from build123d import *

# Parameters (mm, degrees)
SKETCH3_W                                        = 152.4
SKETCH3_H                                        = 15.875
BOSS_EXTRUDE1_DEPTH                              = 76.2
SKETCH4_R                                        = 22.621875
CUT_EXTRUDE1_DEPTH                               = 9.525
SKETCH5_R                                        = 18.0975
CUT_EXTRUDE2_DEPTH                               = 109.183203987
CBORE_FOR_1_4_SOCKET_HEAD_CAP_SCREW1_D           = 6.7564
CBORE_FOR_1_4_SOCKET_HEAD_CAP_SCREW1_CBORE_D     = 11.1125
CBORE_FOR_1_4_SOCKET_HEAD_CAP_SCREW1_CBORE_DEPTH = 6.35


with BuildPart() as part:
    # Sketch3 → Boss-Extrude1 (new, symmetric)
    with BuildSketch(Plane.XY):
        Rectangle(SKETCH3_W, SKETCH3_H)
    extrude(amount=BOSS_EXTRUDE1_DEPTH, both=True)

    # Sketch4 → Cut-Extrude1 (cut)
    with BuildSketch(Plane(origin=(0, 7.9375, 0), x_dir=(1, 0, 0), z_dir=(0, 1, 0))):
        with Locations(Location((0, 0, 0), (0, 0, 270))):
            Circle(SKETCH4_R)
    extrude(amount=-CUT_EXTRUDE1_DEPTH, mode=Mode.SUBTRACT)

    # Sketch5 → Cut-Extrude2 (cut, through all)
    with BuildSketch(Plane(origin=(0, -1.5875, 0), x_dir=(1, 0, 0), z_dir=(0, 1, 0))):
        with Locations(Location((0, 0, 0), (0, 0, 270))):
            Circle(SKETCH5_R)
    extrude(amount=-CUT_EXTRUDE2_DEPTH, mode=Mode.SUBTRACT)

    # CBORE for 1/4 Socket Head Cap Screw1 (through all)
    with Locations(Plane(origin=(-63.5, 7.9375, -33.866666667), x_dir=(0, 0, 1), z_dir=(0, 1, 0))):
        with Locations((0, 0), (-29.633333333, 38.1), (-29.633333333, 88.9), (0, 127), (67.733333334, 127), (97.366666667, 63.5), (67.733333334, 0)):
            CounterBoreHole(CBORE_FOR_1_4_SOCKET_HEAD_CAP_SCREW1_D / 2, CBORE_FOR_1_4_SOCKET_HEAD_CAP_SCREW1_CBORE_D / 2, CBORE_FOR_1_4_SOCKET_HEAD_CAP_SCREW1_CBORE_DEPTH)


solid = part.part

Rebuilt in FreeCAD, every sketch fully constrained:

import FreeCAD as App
import Part
import Sketcher

V = App.Vector
Q = App.Units.Quantity


def add_polygon(sketch, points):
    """Adds a closed chain of lines whose ends are joined by coincident constraints."""
    first, n = sketch.GeometryCount, len(points)
    for a, b in zip(points, points[1:] + points[:1]):
        sketch.addGeometry(Part.LineSegment(App.Vector(*a, 0), App.Vector(*b, 0)), False)
    for i in range(n):
        sketch.addConstraint(Sketcher.Constraint("Coincident", first + i, 2, first + (i + 1) % n, 1))

doc = App.newDocument("Part")
body = doc.addObject("PartDesign::Body", "Body")

sketch1 = body.newObject("Sketcher::SketchObject", "Sketch")
sketch1.AttachmentSupport = (doc.getObject("XY_Plane"), [""])
sketch1.MapMode = "FlatFace"
add_polygon(sketch1, [(-76, 8), (-76, -8), (76, -8), (76, 8)])
sketch1.addConstraint([
    Sketcher.Constraint("Vertical", 0),
    Sketcher.Constraint("Horizontal", 1),
    Sketcher.Constraint("Vertical", 2),
    Sketcher.Constraint("Horizontal", 3),
    Sketcher.Constraint("Symmetric", 0, 2, 2, 2, -1, 1),
    Sketcher.Constraint("DistanceX", 1, 1, 1, 2, Q("6 in")),
    Sketcher.Constraint("DistanceY", 0, 2, 0, 1, Q("0.625 in")),
])
pad1 = body.newObject("PartDesign::Pad", "Pad")
pad1.Profile = sketch1
pad1.Length = Q("6 in")
pad1.Midplane = True

sketch2 = body.newObject("Sketcher::SketchObject", "Sketch001")
sketch2.AttachmentSupport = (doc.getObject("XZ_Plane"), [""])
sketch2.MapMode = "FlatFace"
sketch2.AttachmentOffset = App.Placement(V(0, 0, -0.3125 * 25.4), App.Rotation())
sketch2.addGeometry(Part.Circle(V(0, 0, 0), V(0, 0, 1), 23), False)
sketch2.addConstraint([
    Sketcher.Constraint("Coincident", 0, 3, -1, 1),
    Sketcher.Constraint("Diameter", 0, Q("1.78125 in")),
])
pocket1 = body.newObject("PartDesign::Pocket", "Pocket")
pocket1.Profile = sketch2
pocket1.Length = Q("0.375 in")
pocket1.Reversed = True

sketch3 = body.newObject("Sketcher::SketchObject", "Sketch002")
sketch3.AttachmentSupport = (doc.getObject("XZ_Plane"), [""])
sketch3.MapMode = "FlatFace"
sketch3.AttachmentOffset = App.Placement(V(0, 0, 0.0625 * 25.4), App.Rotation())
sketch3.addGeometry(Part.Circle(V(0, 0, 0), V(0, 0, 1), 18), False)
sketch3.addConstraint([
    Sketcher.Constraint("Coincident", 0, 3, -1, 1),
    Sketcher.Constraint("Diameter", 0, Q("1.425 in")),
])
pocket2 = body.newObject("PartDesign::Pocket", "Pocket001")
pocket2.Profile = sketch3
pocket2.Type = "ThroughAll"
pocket2.Reversed = True

sketch4 = body.newObject("Sketcher::SketchObject", "Sketch003")
sketch4.AttachmentSupport = (doc.getObject("XZ_Plane"), [""])
sketch4.MapMode = "FlatFace"
sketch4.AttachmentOffset = App.Placement(V(0, 0, -0.3125 * 25.4), App.Rotation())
sketch4.addGeometry([
    Part.Circle(V(-63.5, -33.9, 0), V(0, 0, 1), 3.4),
    Part.Circle(V(-25.4, -63.5, 0), V(0, 0, 1), 3.4),
    Part.Circle(V(25.4, -63.5, 0), V(0, 0, 1), 3.4),
    Part.Circle(V(63.5, -33.9, 0), V(0, 0, 1), 3.4),
    Part.Circle(V(63.5, 33.9, 0), V(0, 0, 1), 3.4),
    Part.Circle(V(0, 63.5, 0), V(0, 0, 1), 3.4),
    Part.Circle(V(-63.5, 33.9, 0), V(0, 0, 1), 3.4),
], False)
sketch4.addConstraint([
    Sketcher.Constraint("Equal", 0, 1),
    Sketcher.Constraint("Equal", 1, 2),
    Sketcher.Constraint("Equal", 2, 3),
    Sketcher.Constraint("Equal", 3, 4),
    Sketcher.Constraint("Equal", 4, 5),
    Sketcher.Constraint("Equal", 5, 6),
    Sketcher.Constraint("Symmetric", 0, 3, 4, 3, -1, 1),
    Sketcher.Constraint("Symmetric", 3, 3, 6, 3, -1, 1),
    Sketcher.Constraint("Symmetric", 1, 3, 2, 3, -2),
    Sketcher.Constraint("Symmetric", 0, 3, 3, 3, -2),
    Sketcher.Constraint("PointOnObject", 5, 3, -2),
    Sketcher.Constraint("Diameter", 0, Q("0.266 in")),
    Sketcher.Constraint("DistanceX", 1, 3, -1, 1, Q("1 in")),
    Sketcher.Constraint("DistanceX", 0, 3, 3, 3, Q("5 in")),
    Sketcher.Constraint("DistanceY", 1, 3, 5, 3, Q("5 in")),
    Sketcher.Constraint("DistanceY", 1, 3, -1, 1, Q("2.5 in")),
    Sketcher.Constraint("DistanceY", 0, 3, -1, 1, Q("33.866667 mm")),
])
doc.recompute()
hole = body.newObject("PartDesign::Hole", "Hole")
hole.Profile = sketch4
hole.ThreadType = "None"
hole.Diameter = Q("0.266 in")
hole.DepthType = "ThroughAll"
hole.HoleCutType = "Counterbore"
hole.HoleCutDiameter = Q("0.4375 in")
hole.HoleCutDepth = Q("0.25 in")
hole.Reversed = True

doc.recompute()
